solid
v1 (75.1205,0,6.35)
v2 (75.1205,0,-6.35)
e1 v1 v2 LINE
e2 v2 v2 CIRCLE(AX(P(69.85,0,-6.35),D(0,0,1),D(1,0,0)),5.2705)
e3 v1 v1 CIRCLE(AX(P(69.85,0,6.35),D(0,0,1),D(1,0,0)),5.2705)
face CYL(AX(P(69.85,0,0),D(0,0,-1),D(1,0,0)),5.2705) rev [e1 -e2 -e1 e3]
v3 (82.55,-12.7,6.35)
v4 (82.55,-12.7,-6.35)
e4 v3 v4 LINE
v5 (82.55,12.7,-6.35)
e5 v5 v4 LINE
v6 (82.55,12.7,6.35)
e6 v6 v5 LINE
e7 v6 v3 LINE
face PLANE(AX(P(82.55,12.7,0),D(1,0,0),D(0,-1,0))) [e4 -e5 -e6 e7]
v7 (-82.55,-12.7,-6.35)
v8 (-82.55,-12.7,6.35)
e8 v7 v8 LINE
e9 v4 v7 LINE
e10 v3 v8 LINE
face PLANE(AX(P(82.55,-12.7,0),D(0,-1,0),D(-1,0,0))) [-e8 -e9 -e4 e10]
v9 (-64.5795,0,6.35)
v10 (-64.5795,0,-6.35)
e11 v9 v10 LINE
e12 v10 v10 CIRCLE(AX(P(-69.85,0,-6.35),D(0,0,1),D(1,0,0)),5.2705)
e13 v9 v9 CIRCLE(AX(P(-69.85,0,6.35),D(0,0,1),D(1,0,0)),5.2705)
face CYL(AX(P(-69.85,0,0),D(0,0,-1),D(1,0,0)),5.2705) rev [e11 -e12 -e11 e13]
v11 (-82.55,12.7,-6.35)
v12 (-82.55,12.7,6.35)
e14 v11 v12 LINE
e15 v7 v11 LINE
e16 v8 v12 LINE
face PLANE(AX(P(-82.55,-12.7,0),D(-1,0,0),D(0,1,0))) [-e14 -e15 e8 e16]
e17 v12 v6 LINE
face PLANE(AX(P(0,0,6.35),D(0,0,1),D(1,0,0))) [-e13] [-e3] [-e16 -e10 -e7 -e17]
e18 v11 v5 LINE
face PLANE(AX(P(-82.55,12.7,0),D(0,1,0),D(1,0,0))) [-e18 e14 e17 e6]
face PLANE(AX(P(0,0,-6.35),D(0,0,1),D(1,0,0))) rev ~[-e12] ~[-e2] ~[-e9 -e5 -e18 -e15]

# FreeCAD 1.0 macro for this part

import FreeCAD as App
import Part
import Sketcher

V = App.Vector
Q = App.Units.Quantity


def add_polygon(sketch, points):
    """Adds a closed chain of lines whose ends are joined by coincident constraints."""
    first, n = sketch.GeometryCount, len(points)
    for a, b in zip(points, points[1:] + points[:1]):
        sketch.addGeometry(Part.LineSegment(App.Vector(*a, 0), App.Vector(*b, 0)), False)
    for i in range(n):
        sketch.addConstraint(Sketcher.Constraint("Coincident", first + i, 2, first + (i + 1) % n, 1))

doc = App.newDocument("Part")
body = doc.addObject("PartDesign::Body", "Body")

# Sketch on XY plane
sketch1 = body.newObject("Sketcher::SketchObject", "Sketch")
sketch1.AttachmentSupport = (doc.getObject("XY_Plane"), [""])
sketch1.MapMode = "FlatFace"
add_polygon(sketch1, [(83, 13), (-83, 13), (-83, -13), (83, -13)])  # lines 0-3
sketch1.addGeometry(Part.Circle(V(-70, 0, 0), V(0, 0, 1), 5), False)  # 4
sketch1.addGeometry(Part.Circle(V(70, 0, 0), V(0, 0, 1), 5), False)  # 5
sketch1.addConstraint(Sketcher.Constraint("Horizontal", 0))
sketch1.addConstraint(Sketcher.Constraint("Vertical", 1))
sketch1.addConstraint(Sketcher.Constraint("Horizontal", 2))
sketch1.addConstraint(Sketcher.Constraint("Vertical", 3))
sketch1.addConstraint(Sketcher.Constraint("Equal", 4, 5))
sketch1.addConstraint(Sketcher.Constraint("Symmetric", 4, 3, 5, 3, -1, 1))
sketch1.addConstraint(Sketcher.Constraint("Symmetric", 0, 2, 2, 2, -1, 1))
sketch1.addConstraint(Sketcher.Constraint("PointOnObject", 4, 3, -1))
sketch1.addConstraint(Sketcher.Constraint("DistanceY", 1, 2, 1, 1, Q("1 in")))
sketch1.addConstraint(Sketcher.Constraint("Diameter", 4, Q("0.415 in")))
sketch1.addConstraint(Sketcher.Constraint("DistanceX", 0, 2, 0, 1, Q("6.5 in")))
sketch1.addConstraint(Sketcher.Constraint("DistanceX", 0, 2, 4, 3, Q("0.5 in")))
pad1 = body.newObject("PartDesign::Pad", "Pad")
pad1.Profile = sketch1
pad1.Length = Q("0.5 in")
pad1.Midplane = True

doc.recompute()
